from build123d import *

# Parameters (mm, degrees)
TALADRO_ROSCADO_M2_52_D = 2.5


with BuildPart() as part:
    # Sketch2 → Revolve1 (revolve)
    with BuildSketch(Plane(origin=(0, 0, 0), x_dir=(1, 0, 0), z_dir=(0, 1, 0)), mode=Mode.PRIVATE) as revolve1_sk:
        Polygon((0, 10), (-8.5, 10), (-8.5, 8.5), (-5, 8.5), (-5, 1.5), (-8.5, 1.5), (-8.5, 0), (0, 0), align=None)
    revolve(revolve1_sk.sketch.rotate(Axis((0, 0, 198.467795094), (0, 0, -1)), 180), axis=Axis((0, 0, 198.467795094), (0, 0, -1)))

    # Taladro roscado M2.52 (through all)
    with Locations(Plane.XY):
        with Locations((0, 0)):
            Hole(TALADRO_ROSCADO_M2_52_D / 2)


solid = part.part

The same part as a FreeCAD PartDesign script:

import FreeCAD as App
import Part
import Sketcher
from FreeCAD import Vector


def add_polygon(sketch, points):
    """Adds a closed chain of lines whose ends are joined by coincident constraints."""
    first, n = sketch.GeometryCount, len(points)
    for a, b in zip(points, points[1:] + points[:1]):
        sketch.addGeometry(Part.LineSegment(App.Vector(*a, 0), App.Vector(*b, 0)), False)
    for i in range(n):
        sketch.addConstraint(Sketcher.Constraint("Coincident", first + i, 2, first + (i + 1) % n, 1))

doc = App.newDocument("Part")
params = doc.addObject("Spreadsheet::Sheet", "Params")
for row, (alias, value) in enumerate([
    ("sketch1_height", "7 mm"),
    ("sketch1_height2", "10 mm"),
    ("sketch1_width", "8.5 mm"),
    ("sketch1_width2", "3.5 mm"),
    ("revolution_angle", "360 deg"),
    ("sketch2_diameter", "2.5 mm"),
    ("hole_diameter", "2.5 mm"),
], start=1):
    params.set(f"A{row}", alias)
    params.set(f"B{row}", "=" + value)
    params.setAlias(f"B{row}", alias)

body = doc.addObject("PartDesign::Body", "Body")

# Sketch on XZ plane
sketch1 = body.newObject("Sketcher::SketchObject", "Sketch")
sketch1.AttachmentSupport = (doc.getObject("XZ_Plane"), [""])
sketch1.MapMode = "FlatFace"
add_polygon(sketch1, [(0, -10), (-8.5, -10), (-8.5, -8.5), (-5, -8.5), (-5, -1.5), (-8.5, -1.5), (-8.5, 0), (0, 0)])  # lines 0-7
sketch1.addConstraint([
    Sketcher.Constraint("Horizontal", 0),
    Sketcher.Constraint("Vertical", 1),
    Sketcher.Constraint("Horizontal", 2),
    Sketcher.Constraint("Vertical", 3),
    Sketcher.Constraint("Horizontal", 4),
    Sketcher.Constraint("Vertical", 5),
    Sketcher.Constraint("Horizontal", 6),
    Sketcher.Constraint("Vertical", 7),
    Sketcher.Constraint("Coincident", 6, 2, -1, 1),
    Sketcher.Constraint("Vertical", 1, 2, 4, 2),
    Sketcher.Constraint("Equal", 1, 5),
    Sketcher.Constraint("DistanceY", 3, 1, 3, 2, 7.0),
    Sketcher.Constraint("DistanceY", 7, 2, 7, 1, 10.0),
    Sketcher.Constraint("DistanceX", 0, 2, 0, 1, 8.5),
    Sketcher.Constraint("DistanceX", 2, 1, 2, 2, 3.5),
])
sketch1.setExpression("Constraints[19]", "Params.sketch1_height")
sketch1.setExpression("Constraints[20]", "Params.sketch1_height2")
sketch1.setExpression("Constraints[21]", "Params.sketch1_width")
sketch1.setExpression("Constraints[22]", "Params.sketch1_width2")
revolution = body.newObject("PartDesign::Revolution", "Revolution")
revolution.Profile = sketch1
revolution.ReferenceAxis = (sketch1, ["V_Axis"])
revolution.setExpression("Angle", "Params.revolution_angle")

# Sketch on XY plane
sketch2 = body.newObject("Sketcher::SketchObject", "Sketch001")
sketch2.AttachmentSupport = (doc.getObject("XY_Plane"), [""])
sketch2.MapMode = "FlatFace"
sketch2.addGeometry(Part.Circle(Vector(0, 0, 0), Vector(0, 0, 1), 1.2), False)
sketch2.addConstraint([
    Sketcher.Constraint("Coincident", 0, 3, -1, 1),
    Sketcher.Constraint("Diameter", 0, 2.5),
])
sketch2.setExpression("Constraints[1]", "Params.sketch2_diameter")
doc.recompute()
hole = body.newObject("PartDesign::Hole", "Hole")
hole.Profile = sketch2
hole.ThreadType = "None"
hole.setExpression("Diameter", "Params.hole_diameter")
hole.DepthType = "ThroughAll"

doc.recompute()
